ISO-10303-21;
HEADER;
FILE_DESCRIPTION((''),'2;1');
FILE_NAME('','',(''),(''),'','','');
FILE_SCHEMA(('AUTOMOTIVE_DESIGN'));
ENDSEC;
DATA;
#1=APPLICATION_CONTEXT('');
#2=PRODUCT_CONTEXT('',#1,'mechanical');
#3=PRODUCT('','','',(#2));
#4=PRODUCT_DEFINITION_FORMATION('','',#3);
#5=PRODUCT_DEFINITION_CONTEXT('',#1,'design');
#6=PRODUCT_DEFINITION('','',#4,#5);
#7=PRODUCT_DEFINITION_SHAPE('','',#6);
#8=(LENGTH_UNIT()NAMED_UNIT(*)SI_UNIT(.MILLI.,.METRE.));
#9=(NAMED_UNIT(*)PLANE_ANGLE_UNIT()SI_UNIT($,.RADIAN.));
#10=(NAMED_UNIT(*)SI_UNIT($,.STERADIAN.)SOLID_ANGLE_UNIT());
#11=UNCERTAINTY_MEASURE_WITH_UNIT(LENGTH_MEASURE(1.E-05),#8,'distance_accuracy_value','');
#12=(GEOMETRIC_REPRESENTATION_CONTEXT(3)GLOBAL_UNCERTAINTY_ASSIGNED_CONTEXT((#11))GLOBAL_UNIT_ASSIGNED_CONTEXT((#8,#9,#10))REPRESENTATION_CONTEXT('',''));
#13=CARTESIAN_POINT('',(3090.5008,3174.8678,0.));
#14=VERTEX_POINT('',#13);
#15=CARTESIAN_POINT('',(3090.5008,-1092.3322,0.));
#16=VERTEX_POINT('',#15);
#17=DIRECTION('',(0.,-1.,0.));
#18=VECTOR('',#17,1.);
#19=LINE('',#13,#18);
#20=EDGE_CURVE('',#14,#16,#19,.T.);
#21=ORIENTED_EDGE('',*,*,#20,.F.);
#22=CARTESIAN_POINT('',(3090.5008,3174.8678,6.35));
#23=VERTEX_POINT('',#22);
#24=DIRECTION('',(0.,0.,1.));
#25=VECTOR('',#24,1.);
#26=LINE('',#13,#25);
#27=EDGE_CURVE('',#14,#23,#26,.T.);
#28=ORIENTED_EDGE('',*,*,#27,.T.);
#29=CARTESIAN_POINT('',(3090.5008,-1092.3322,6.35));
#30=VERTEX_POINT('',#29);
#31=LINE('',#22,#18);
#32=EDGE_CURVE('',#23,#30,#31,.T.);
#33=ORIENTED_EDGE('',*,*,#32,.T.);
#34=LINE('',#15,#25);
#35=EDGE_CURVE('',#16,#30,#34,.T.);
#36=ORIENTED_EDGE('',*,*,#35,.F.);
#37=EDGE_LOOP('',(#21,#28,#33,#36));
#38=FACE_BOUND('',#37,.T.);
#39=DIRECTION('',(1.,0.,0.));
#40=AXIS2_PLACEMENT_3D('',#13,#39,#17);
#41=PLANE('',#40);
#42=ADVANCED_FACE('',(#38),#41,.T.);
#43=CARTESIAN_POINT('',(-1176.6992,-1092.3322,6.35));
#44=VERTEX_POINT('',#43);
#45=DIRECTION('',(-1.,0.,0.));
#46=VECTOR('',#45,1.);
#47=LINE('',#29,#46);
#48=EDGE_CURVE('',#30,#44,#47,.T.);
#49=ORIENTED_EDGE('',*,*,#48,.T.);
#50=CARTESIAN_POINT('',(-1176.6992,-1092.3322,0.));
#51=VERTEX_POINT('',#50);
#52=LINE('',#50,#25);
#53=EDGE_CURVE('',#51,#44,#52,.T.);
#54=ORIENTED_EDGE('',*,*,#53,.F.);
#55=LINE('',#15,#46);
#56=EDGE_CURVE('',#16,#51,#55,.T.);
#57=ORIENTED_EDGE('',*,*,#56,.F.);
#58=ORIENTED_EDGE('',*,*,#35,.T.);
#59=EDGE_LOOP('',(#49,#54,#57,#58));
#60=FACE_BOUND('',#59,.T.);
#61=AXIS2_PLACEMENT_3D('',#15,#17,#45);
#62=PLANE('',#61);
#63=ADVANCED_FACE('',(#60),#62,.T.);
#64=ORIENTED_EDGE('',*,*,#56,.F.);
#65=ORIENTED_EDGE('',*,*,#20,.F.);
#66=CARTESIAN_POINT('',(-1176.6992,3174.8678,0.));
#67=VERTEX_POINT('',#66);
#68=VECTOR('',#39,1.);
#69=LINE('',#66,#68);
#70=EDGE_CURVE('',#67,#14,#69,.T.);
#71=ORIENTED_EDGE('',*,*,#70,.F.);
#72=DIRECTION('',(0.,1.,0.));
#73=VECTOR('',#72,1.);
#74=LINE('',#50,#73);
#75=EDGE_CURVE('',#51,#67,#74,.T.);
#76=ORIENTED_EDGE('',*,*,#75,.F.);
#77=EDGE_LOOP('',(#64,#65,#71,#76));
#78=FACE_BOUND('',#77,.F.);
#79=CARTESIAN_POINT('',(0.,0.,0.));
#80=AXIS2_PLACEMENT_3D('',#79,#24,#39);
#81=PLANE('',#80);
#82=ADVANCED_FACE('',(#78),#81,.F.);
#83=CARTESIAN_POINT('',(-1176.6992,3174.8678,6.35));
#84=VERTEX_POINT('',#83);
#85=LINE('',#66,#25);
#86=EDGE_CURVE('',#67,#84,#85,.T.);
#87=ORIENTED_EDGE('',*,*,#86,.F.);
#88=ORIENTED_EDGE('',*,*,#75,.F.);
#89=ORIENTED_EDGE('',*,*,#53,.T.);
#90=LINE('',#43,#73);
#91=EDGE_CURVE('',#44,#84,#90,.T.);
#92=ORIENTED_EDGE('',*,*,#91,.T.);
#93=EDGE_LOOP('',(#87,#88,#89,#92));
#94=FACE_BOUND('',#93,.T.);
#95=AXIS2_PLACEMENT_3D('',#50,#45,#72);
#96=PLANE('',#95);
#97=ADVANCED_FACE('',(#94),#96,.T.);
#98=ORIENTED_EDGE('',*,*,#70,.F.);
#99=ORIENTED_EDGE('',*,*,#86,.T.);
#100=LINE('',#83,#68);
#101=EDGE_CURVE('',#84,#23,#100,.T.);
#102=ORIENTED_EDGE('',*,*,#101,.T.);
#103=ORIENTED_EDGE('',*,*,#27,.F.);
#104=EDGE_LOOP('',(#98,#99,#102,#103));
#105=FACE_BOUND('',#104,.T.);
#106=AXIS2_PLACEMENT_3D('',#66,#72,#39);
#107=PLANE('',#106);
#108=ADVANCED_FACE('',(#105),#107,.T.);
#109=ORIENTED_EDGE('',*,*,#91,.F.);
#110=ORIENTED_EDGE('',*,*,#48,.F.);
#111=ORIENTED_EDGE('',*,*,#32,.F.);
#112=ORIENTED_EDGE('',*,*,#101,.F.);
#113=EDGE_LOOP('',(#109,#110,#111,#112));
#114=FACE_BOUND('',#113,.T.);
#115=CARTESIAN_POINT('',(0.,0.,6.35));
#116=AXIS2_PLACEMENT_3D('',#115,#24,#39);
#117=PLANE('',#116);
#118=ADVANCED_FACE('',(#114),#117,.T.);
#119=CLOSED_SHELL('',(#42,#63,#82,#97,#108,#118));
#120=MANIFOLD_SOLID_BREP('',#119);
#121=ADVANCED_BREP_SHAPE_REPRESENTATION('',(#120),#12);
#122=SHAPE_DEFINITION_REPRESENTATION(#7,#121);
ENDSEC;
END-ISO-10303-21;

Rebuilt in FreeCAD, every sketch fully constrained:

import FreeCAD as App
import Part
import Sketcher
Q = App.Units.Quantity


def add_polygon(sketch, points):
    """Adds a closed chain of lines whose ends are joined by coincident constraints."""
    first, n = sketch.GeometryCount, len(points)
    for a, b in zip(points, points[1:] + points[:1]):
        sketch.addGeometry(Part.LineSegment(App.Vector(*a, 0), App.Vector(*b, 0)), False)
    for i in range(n):
        sketch.addConstraint(Sketcher.Constraint("Coincident", first + i, 2, first + (i + 1) % n, 1))

doc = App.newDocument("Part")
body = doc.addObject("PartDesign::Body", "Body")

# Sketch on XY plane
sketch1 = body.newObject("Sketcher::SketchObject", "Sketch")
sketch1.AttachmentSupport = (doc.getObject("XY_Plane"), [""])
sketch1.MapMode = "FlatFace"
add_polygon(sketch1, [(3091, 3175), (-1177, 3175), (-1177, -1092), (3091, -1092)])  # lines 0-3
sketch1.addConstraint(Sketcher.Constraint("Horizontal", 0))
sketch1.addConstraint(Sketcher.Constraint("Vertical", 1))
sketch1.addConstraint(Sketcher.Constraint("Horizontal", 2))
sketch1.addConstraint(Sketcher.Constraint("Vertical", 3))
sketch1.addConstraint(Sketcher.Constraint("Equal", 2, 1))
sketch1.addConstraint(Sketcher.Constraint("DistanceX", 0, 2, 0, 1, Q("168 in")))
sketch1.addConstraint(Sketcher.Constraint("DistanceY", -1, 1, 0, 2, Q("124.9948 in")))
sketch1.addConstraint(Sketcher.Constraint("DistanceX", 0, 2, -1, 1, Q("1176.6992 mm")))
pad1 = body.newObject("PartDesign::Pad", "Pad")
pad1.Profile = sketch1
pad1.Length = Q("0.25 in")

doc.recompute()
